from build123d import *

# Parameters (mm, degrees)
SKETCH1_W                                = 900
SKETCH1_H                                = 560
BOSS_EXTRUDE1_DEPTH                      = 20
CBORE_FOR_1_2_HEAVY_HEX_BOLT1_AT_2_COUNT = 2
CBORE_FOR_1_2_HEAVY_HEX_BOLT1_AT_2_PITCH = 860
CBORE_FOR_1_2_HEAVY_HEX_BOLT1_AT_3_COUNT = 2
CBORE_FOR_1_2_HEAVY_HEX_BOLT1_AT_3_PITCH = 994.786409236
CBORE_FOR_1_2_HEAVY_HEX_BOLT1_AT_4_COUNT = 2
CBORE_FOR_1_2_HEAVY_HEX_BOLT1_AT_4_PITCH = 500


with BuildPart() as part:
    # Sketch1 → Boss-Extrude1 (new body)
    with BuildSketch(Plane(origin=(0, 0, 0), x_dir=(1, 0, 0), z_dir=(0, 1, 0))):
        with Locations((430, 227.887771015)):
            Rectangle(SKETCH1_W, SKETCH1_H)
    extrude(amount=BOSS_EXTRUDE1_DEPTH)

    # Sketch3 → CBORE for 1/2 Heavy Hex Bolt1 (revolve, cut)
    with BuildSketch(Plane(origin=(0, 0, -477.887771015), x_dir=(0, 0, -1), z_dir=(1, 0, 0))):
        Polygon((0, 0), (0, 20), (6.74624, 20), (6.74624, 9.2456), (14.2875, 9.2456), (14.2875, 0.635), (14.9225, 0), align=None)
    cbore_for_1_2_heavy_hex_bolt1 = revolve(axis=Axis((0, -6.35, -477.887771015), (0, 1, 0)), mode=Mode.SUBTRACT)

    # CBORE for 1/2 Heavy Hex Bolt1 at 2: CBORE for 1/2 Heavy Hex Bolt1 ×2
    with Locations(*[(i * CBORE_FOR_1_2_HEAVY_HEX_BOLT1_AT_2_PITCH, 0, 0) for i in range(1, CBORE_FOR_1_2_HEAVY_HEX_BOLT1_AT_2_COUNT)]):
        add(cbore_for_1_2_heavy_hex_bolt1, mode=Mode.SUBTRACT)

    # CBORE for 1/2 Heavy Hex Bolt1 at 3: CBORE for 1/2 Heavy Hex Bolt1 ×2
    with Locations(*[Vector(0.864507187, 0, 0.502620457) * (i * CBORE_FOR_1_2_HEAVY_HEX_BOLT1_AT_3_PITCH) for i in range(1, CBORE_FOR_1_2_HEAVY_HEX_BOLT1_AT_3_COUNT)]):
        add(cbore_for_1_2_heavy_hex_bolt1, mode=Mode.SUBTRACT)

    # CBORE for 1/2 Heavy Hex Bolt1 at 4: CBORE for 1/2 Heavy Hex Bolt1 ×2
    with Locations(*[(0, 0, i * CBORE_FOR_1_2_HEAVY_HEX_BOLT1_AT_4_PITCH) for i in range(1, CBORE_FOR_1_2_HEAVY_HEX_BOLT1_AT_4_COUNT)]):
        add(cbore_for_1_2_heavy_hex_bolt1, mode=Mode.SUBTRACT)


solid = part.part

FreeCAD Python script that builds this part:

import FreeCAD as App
import Part
import Sketcher
Q = App.Units.Quantity


def add_polygon(sketch, points):
    """Adds a closed chain of lines whose ends are joined by coincident constraints."""
    first, n = sketch.GeometryCount, len(points)
    for a, b in zip(points, points[1:] + points[:1]):
        sketch.addGeometry(Part.LineSegment(App.Vector(*a, 0), App.Vector(*b, 0)), False)
    for i in range(n):
        sketch.addConstraint(Sketcher.Constraint("Coincident", first + i, 2, first + (i + 1) % n, 1))

doc = App.newDocument("Part")
params = doc.addObject("Spreadsheet::Sheet", "Params")
for row, (alias, value) in enumerate([
    ("sketch1_width", "900 mm"),
    ("sketch1_height", "560 mm"),
    ("pad1_length", "20 mm"),
    ("sketch2_width", "20 mm"),
    ("groove_angle", "360 deg"),
    ("linearpattern_pitch", "860 mm"),
    ("linearpattern2_pitch", "994.786409 mm"),
    ("linearpattern3_pitch", "500 mm"),
], start=1):
    params.set(f"A{row}", alias)
    params.set(f"B{row}", "=" + value)
    params.setAlias(f"B{row}", alias)

body = doc.addObject("PartDesign::Body", "Body")

# Sketch on XZ plane
sketch1 = body.newObject("Sketcher::SketchObject", "Sketch")
sketch1.AttachmentSupport = (doc.getObject("XZ_Plane"), [""])
sketch1.MapMode = "FlatFace"
add_polygon(sketch1, [(-20, -508), (-20, 52), (880, 52), (880, -508)])  # lines 0-3
sketch1.addConstraint(Sketcher.Constraint("Vertical", 0))
sketch1.addConstraint(Sketcher.Constraint("Horizontal", 1))
sketch1.addConstraint(Sketcher.Constraint("Vertical", 2))
sketch1.addConstraint(Sketcher.Constraint("Horizontal", 3))
sketch1.addConstraint(Sketcher.Constraint("DistanceX", 1, 1, 1, 2, Q("900 mm")))
sketch1.addConstraint(Sketcher.Constraint("DistanceY", 0, 1, 0, 2, Q("560 mm")))
sketch1.addConstraint(Sketcher.Constraint("DistanceX", 0, 2, -1, 1, Q("20 mm")))
sketch1.addConstraint(Sketcher.Constraint("DistanceY", -1, 1, 0, 2, Q("52.112229 mm")))
sketch1.setExpression("Constraints[8]", "Params.sketch1_width")
sketch1.setExpression("Constraints[9]", "Params.sketch1_height")
pad1 = body.newObject("PartDesign::Pad", "Pad")
pad1.Profile = sketch1
pad1.setExpression("Length", "Params.pad1_length")
pad1.Reversed = True

# Sketch on YZ plane
sketch2 = body.newObject("Sketcher::SketchObject", "Sketch001")
sketch2.AttachmentSupport = (doc.getObject("YZ_Plane"), [""])
sketch2.MapMode = "FlatFace"
add_polygon(sketch2, [(20, -477.9), (0, -477.9), (0, -492.8), (0.6, -492.2), (9.2, -492.2), (9.2, -484.6), (20, -484.6)])  # lines 0-6
sketch2.addGeometry(Part.LineSegment(App.Vector(0, -477.9, 0), App.Vector(20, -477.9, 0)), True)  # axis
sketch2.addConstraint(Sketcher.Constraint("Horizontal", 0))
sketch2.addConstraint(Sketcher.Constraint("Vertical", 1))
sketch2.addConstraint(Sketcher.Constraint("Horizontal", 3))
sketch2.addConstraint(Sketcher.Constraint("Vertical", 4))
sketch2.addConstraint(Sketcher.Constraint("Horizontal", 5))
sketch2.addConstraint(Sketcher.Constraint("Vertical", 6))
sketch2.addConstraint(Sketcher.Constraint("Horizontal", 7))
sketch2.addConstraint(Sketcher.Constraint("Coincident", 7, 1, 0, 2))
sketch2.addConstraint(Sketcher.Constraint("PointOnObject", 0, 2, -2))
sketch2.addConstraint(Sketcher.Constraint("Vertical", 5, 2, 7, 2))
sketch2.addConstraint(Sketcher.Constraint("DistanceX", 0, 2, 0, 1, Q("20 mm")))
sketch2.addConstraint(Sketcher.Constraint("Angle", 2, Q("45 deg")))
sketch2.addConstraint(Sketcher.Constraint("DistanceX", 3, 1, 3, 2, Q("8.6106 mm")))
sketch2.addConstraint(Sketcher.Constraint("DistanceX", 5, 1, 5, 2, Q("10.7544 mm")))
sketch2.addConstraint(Sketcher.Constraint("DistanceY", 1, 2, 1, 1, Q("14.9225 mm")))
sketch2.addConstraint(Sketcher.Constraint("DistanceY", 4, 1, 4, 2, Q("7.54126 mm")))
sketch2.addConstraint(Sketcher.Constraint("DistanceY", 0, 2, -1, 1, Q("477.887771 mm")))
sketch2.setExpression("Constraints[17]", "Params.sketch2_width")
groove = body.newObject("PartDesign::Groove", "Groove")
groove.Profile = sketch2
groove.ReferenceAxis = (sketch2, ["Axis0"])
groove.setExpression("Angle", "Params.groove_angle")
doc.recompute()

linearpattern = body.newObject("PartDesign::LinearPattern", "LinearPattern")
linearpattern.Originals = [groove]
linearpattern.Direction = (doc.getObject("X_Axis"), [""])
linearpattern.Mode = "offset"
linearpattern.setExpression("Offset", "Params.linearpattern_pitch")
linearpattern.Occurrences = 2
body.Tip = linearpattern
doc.recompute()

datumline = body.newObject("PartDesign::Line", "DatumLine")
datumline.Placement = App.Placement(App.Vector(0, 0, 0), App.Rotation(App.Vector(0, 0, 1), App.Vector(0.864507187, 0, 0.502620457)))
linearpattern2 = body.newObject("PartDesign::LinearPattern", "LinearPattern001")
linearpattern2.Originals = [groove]
linearpattern2.Direction = (datumline, [""])
linearpattern2.Mode = "offset"
linearpattern2.setExpression("Offset", "Params.linearpattern2_pitch")
linearpattern2.Occurrences = 2
body.Tip = linearpattern2
doc.recompute()

linearpattern3 = body.newObject("PartDesign::LinearPattern", "LinearPattern002")
linearpattern3.Originals = [groove]
linearpattern3.Direction = (doc.getObject("Z_Axis"), [""])
linearpattern3.Mode = "offset"
linearpattern3.setExpression("Offset", "Params.linearpattern3_pitch")
linearpattern3.Occurrences = 2
body.Tip = linearpattern3

doc.recompute()
